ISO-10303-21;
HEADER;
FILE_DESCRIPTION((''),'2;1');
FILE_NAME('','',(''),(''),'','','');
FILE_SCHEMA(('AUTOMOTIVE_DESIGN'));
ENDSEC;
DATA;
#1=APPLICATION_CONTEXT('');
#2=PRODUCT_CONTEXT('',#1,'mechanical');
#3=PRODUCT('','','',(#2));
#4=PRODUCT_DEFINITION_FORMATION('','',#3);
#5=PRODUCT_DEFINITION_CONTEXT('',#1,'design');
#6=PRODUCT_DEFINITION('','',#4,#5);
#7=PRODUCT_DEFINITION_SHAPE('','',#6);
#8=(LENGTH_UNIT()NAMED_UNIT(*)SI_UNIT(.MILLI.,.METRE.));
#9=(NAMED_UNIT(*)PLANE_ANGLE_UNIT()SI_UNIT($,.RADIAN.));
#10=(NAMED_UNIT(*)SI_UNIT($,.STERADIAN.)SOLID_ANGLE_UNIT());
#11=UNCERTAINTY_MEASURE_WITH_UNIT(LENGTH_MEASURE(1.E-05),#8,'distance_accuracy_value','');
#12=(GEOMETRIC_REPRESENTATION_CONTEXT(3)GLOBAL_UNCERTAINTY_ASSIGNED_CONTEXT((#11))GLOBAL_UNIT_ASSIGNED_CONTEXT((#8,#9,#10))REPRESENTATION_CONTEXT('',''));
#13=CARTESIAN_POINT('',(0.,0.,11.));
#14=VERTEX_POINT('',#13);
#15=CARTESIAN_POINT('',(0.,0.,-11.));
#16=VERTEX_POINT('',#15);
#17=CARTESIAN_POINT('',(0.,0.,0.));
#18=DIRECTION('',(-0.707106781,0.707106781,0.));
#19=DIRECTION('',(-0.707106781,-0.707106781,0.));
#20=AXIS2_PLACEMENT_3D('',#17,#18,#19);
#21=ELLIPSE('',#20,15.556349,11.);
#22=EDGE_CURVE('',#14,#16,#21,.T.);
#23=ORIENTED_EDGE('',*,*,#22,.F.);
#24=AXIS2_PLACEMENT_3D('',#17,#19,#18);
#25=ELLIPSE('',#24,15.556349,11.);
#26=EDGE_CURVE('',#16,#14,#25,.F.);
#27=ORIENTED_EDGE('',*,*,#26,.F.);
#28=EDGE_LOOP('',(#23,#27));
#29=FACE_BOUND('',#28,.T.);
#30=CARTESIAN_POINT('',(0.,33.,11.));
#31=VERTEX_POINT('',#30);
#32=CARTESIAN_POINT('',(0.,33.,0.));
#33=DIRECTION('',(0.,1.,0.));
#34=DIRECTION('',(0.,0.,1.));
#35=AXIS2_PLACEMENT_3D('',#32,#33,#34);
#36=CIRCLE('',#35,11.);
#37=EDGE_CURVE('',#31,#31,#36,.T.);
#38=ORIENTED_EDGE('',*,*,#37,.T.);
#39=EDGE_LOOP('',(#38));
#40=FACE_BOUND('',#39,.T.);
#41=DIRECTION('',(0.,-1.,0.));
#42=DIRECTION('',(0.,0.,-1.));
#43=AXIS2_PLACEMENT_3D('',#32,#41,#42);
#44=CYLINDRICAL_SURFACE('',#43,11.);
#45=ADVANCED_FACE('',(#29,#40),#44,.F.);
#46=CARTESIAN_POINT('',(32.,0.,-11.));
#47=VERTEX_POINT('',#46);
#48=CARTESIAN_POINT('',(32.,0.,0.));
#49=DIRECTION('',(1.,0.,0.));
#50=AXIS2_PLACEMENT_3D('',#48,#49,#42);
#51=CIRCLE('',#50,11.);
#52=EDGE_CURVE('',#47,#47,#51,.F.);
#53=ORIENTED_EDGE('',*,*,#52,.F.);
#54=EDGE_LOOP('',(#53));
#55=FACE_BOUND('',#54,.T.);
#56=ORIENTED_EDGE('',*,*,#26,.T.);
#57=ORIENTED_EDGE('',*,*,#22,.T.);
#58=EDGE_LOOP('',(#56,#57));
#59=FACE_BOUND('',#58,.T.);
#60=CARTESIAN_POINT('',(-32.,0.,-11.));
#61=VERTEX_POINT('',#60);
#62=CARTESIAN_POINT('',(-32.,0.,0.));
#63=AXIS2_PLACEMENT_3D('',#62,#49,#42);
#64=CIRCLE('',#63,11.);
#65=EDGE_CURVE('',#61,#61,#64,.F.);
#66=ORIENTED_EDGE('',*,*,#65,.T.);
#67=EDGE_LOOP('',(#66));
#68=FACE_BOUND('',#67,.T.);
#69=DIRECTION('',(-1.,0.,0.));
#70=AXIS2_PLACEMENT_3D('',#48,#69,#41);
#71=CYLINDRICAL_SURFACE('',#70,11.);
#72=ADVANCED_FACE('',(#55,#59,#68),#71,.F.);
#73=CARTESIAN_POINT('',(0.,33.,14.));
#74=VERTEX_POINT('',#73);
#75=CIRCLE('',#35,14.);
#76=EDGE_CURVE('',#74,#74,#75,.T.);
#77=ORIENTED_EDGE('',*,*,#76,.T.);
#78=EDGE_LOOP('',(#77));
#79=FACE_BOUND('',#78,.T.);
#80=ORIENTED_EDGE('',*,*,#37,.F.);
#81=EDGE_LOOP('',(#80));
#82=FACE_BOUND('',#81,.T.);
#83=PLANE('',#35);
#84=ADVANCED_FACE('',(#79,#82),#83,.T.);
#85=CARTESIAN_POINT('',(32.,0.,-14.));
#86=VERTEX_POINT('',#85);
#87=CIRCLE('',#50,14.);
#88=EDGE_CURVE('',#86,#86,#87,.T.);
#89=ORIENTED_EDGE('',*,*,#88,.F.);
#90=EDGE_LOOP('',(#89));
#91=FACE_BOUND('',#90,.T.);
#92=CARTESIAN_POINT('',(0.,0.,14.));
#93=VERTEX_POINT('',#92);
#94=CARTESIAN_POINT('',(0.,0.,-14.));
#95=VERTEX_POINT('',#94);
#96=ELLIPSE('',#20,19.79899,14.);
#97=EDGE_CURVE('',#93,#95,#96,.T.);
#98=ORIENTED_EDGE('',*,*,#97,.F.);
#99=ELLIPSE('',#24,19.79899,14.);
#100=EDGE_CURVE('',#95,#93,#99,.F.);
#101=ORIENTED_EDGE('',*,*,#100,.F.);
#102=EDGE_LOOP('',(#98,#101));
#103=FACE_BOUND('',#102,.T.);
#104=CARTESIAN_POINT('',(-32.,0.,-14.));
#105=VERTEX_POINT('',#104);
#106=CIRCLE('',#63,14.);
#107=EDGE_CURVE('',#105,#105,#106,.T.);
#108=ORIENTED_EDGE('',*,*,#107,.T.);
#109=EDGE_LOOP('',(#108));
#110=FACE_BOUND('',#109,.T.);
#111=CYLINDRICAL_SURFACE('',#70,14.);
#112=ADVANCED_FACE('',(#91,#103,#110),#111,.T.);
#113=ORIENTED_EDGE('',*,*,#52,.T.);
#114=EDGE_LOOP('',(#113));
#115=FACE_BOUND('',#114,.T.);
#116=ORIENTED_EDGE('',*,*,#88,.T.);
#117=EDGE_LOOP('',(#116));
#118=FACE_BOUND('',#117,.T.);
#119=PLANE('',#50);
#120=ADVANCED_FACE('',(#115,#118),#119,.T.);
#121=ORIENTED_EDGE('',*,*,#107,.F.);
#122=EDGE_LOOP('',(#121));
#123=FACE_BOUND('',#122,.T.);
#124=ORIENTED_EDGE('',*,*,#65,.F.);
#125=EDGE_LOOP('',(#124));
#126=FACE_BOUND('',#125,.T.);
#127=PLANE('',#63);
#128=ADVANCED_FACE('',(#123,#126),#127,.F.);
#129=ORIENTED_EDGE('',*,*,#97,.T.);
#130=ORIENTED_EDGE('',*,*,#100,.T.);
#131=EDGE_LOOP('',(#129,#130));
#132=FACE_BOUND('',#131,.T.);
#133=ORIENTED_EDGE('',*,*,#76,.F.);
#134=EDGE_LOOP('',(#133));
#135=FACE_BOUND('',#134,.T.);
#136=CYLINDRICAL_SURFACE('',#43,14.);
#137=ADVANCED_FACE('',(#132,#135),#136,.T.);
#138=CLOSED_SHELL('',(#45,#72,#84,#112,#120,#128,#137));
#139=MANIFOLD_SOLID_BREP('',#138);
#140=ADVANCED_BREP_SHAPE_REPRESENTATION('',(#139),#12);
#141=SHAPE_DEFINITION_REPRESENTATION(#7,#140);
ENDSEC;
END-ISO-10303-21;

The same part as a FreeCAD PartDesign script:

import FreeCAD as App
import Part
import Sketcher
from FreeCAD import Vector

doc = App.newDocument("Part")
body = doc.addObject("PartDesign::Body", "Body")

sketch1 = body.newObject("Sketcher::SketchObject", "Sketch")
sketch1.AttachmentSupport = (doc.getObject("YZ_Plane"), [""])
sketch1.MapMode = "FlatFace"
sketch1.AttachmentOffset = App.Placement(Vector(0, 0, 32), App.Rotation())
sketch1.addGeometry(Part.Circle(Vector(0, 0, 0), Vector(0, 0, 1), 14), False)
sketch1.addGeometry(Part.Circle(Vector(0, 0, 0), Vector(0, 0, 1), 11), False)
sketch1.addConstraint(Sketcher.Constraint("Coincident", 0, 3, -1, 1))
sketch1.addConstraint(Sketcher.Constraint("Coincident", 1, 3, -1, 1))
sketch1.addConstraint(Sketcher.Constraint("Diameter", 0, 28.0))
sketch1.addConstraint(Sketcher.Constraint("Diameter", 1, 22.0))

sketch2 = body.newObject("Sketcher::SketchObject", "Sketch001")
sketch2.AttachmentSupport = (doc.getObject("XY_Plane"), [""])
sketch2.MapMode = "FlatFace"
sketch2.addGeometry(Part.LineSegment(Vector(32, 0, 0), Vector(-32, 0, 0)), False)
sketch2.addConstraint(Sketcher.Constraint("Horizontal", 0))
sketch2.addConstraint(Sketcher.Constraint("Symmetric", 0, 1, 0, 2, -1, 1))
sketch2.addConstraint(Sketcher.Constraint("DistanceX", 0, 2, 0, 1, 64.0))
doc.recompute()

additivepipe = body.newObject("PartDesign::AdditivePipe", "AdditivePipe")
additivepipe.Profile = sketch1
additivepipe.Spine = (sketch2, ["Edge1"])

sketch3 = body.newObject("Sketcher::SketchObject", "Sketch002")
sketch3.AttachmentSupport = (doc.getObject("XZ_Plane"), [""])
sketch3.MapMode = "FlatFace"
sketch3.addGeometry(Part.Circle(Vector(0, 0, 0), Vector(0, 0, 1), 14), False)
sketch3.addGeometry(Part.Circle(Vector(0, 0, 0), Vector(0, 0, 1), 11), False)
sketch3.addConstraint(Sketcher.Constraint("Coincident", 0, 3, -1, 1))
sketch3.addConstraint(Sketcher.Constraint("Coincident", 1, 3, -1, 1))
sketch3.addConstraint(Sketcher.Constraint("Diameter", 0, 28.0))
sketch3.addConstraint(Sketcher.Constraint("Diameter", 1, 22.0))
pad1 = body.newObject("PartDesign::Pad", "Pad")
pad1.Profile = sketch3
pad1.Length = 33
pad1.Reversed = True

sketch4 = body.newObject("Sketcher::SketchObject", "Sketch003")
sketch4.AttachmentSupport = (doc.getObject("YZ_Plane"), [""])
sketch4.MapMode = "FlatFace"
sketch4.AttachmentOffset = App.Placement(Vector(0, 0, -32), App.Rotation())
sketch4.addGeometry(Part.Circle(Vector(0, 0, 0), Vector(0, 0, 1), 11), False)
sketch4.addConstraint(Sketcher.Constraint("Coincident", 0, 3, -1, 1))
sketch4.addConstraint(Sketcher.Constraint("Diameter", 0, 22.0))
pocket1 = body.newObject("PartDesign::Pocket", "Pocket")
pocket1.Profile = sketch4
pocket1.Length = 53
pocket1.Reversed = True

sketch5 = body.newObject("Sketcher::SketchObject", "Sketch004")
sketch5.AttachmentSupport = (doc.getObject("XZ_Plane"), [""])
sketch5.MapMode = "FlatFace"
sketch5.addGeometry(Part.Circle(Vector(0, 0, 0), Vector(0, 0, 1), 11), False)
sketch5.addConstraint(Sketcher.Constraint("Coincident", 0, 3, -1, 1))
sketch5.addConstraint(Sketcher.Constraint("Diameter", 0, 22.0))
pocket2 = body.newObject("PartDesign::Pocket", "Pocket001")
pocket2.Profile = sketch5
pocket2.Length = 33

doc.recompute()
